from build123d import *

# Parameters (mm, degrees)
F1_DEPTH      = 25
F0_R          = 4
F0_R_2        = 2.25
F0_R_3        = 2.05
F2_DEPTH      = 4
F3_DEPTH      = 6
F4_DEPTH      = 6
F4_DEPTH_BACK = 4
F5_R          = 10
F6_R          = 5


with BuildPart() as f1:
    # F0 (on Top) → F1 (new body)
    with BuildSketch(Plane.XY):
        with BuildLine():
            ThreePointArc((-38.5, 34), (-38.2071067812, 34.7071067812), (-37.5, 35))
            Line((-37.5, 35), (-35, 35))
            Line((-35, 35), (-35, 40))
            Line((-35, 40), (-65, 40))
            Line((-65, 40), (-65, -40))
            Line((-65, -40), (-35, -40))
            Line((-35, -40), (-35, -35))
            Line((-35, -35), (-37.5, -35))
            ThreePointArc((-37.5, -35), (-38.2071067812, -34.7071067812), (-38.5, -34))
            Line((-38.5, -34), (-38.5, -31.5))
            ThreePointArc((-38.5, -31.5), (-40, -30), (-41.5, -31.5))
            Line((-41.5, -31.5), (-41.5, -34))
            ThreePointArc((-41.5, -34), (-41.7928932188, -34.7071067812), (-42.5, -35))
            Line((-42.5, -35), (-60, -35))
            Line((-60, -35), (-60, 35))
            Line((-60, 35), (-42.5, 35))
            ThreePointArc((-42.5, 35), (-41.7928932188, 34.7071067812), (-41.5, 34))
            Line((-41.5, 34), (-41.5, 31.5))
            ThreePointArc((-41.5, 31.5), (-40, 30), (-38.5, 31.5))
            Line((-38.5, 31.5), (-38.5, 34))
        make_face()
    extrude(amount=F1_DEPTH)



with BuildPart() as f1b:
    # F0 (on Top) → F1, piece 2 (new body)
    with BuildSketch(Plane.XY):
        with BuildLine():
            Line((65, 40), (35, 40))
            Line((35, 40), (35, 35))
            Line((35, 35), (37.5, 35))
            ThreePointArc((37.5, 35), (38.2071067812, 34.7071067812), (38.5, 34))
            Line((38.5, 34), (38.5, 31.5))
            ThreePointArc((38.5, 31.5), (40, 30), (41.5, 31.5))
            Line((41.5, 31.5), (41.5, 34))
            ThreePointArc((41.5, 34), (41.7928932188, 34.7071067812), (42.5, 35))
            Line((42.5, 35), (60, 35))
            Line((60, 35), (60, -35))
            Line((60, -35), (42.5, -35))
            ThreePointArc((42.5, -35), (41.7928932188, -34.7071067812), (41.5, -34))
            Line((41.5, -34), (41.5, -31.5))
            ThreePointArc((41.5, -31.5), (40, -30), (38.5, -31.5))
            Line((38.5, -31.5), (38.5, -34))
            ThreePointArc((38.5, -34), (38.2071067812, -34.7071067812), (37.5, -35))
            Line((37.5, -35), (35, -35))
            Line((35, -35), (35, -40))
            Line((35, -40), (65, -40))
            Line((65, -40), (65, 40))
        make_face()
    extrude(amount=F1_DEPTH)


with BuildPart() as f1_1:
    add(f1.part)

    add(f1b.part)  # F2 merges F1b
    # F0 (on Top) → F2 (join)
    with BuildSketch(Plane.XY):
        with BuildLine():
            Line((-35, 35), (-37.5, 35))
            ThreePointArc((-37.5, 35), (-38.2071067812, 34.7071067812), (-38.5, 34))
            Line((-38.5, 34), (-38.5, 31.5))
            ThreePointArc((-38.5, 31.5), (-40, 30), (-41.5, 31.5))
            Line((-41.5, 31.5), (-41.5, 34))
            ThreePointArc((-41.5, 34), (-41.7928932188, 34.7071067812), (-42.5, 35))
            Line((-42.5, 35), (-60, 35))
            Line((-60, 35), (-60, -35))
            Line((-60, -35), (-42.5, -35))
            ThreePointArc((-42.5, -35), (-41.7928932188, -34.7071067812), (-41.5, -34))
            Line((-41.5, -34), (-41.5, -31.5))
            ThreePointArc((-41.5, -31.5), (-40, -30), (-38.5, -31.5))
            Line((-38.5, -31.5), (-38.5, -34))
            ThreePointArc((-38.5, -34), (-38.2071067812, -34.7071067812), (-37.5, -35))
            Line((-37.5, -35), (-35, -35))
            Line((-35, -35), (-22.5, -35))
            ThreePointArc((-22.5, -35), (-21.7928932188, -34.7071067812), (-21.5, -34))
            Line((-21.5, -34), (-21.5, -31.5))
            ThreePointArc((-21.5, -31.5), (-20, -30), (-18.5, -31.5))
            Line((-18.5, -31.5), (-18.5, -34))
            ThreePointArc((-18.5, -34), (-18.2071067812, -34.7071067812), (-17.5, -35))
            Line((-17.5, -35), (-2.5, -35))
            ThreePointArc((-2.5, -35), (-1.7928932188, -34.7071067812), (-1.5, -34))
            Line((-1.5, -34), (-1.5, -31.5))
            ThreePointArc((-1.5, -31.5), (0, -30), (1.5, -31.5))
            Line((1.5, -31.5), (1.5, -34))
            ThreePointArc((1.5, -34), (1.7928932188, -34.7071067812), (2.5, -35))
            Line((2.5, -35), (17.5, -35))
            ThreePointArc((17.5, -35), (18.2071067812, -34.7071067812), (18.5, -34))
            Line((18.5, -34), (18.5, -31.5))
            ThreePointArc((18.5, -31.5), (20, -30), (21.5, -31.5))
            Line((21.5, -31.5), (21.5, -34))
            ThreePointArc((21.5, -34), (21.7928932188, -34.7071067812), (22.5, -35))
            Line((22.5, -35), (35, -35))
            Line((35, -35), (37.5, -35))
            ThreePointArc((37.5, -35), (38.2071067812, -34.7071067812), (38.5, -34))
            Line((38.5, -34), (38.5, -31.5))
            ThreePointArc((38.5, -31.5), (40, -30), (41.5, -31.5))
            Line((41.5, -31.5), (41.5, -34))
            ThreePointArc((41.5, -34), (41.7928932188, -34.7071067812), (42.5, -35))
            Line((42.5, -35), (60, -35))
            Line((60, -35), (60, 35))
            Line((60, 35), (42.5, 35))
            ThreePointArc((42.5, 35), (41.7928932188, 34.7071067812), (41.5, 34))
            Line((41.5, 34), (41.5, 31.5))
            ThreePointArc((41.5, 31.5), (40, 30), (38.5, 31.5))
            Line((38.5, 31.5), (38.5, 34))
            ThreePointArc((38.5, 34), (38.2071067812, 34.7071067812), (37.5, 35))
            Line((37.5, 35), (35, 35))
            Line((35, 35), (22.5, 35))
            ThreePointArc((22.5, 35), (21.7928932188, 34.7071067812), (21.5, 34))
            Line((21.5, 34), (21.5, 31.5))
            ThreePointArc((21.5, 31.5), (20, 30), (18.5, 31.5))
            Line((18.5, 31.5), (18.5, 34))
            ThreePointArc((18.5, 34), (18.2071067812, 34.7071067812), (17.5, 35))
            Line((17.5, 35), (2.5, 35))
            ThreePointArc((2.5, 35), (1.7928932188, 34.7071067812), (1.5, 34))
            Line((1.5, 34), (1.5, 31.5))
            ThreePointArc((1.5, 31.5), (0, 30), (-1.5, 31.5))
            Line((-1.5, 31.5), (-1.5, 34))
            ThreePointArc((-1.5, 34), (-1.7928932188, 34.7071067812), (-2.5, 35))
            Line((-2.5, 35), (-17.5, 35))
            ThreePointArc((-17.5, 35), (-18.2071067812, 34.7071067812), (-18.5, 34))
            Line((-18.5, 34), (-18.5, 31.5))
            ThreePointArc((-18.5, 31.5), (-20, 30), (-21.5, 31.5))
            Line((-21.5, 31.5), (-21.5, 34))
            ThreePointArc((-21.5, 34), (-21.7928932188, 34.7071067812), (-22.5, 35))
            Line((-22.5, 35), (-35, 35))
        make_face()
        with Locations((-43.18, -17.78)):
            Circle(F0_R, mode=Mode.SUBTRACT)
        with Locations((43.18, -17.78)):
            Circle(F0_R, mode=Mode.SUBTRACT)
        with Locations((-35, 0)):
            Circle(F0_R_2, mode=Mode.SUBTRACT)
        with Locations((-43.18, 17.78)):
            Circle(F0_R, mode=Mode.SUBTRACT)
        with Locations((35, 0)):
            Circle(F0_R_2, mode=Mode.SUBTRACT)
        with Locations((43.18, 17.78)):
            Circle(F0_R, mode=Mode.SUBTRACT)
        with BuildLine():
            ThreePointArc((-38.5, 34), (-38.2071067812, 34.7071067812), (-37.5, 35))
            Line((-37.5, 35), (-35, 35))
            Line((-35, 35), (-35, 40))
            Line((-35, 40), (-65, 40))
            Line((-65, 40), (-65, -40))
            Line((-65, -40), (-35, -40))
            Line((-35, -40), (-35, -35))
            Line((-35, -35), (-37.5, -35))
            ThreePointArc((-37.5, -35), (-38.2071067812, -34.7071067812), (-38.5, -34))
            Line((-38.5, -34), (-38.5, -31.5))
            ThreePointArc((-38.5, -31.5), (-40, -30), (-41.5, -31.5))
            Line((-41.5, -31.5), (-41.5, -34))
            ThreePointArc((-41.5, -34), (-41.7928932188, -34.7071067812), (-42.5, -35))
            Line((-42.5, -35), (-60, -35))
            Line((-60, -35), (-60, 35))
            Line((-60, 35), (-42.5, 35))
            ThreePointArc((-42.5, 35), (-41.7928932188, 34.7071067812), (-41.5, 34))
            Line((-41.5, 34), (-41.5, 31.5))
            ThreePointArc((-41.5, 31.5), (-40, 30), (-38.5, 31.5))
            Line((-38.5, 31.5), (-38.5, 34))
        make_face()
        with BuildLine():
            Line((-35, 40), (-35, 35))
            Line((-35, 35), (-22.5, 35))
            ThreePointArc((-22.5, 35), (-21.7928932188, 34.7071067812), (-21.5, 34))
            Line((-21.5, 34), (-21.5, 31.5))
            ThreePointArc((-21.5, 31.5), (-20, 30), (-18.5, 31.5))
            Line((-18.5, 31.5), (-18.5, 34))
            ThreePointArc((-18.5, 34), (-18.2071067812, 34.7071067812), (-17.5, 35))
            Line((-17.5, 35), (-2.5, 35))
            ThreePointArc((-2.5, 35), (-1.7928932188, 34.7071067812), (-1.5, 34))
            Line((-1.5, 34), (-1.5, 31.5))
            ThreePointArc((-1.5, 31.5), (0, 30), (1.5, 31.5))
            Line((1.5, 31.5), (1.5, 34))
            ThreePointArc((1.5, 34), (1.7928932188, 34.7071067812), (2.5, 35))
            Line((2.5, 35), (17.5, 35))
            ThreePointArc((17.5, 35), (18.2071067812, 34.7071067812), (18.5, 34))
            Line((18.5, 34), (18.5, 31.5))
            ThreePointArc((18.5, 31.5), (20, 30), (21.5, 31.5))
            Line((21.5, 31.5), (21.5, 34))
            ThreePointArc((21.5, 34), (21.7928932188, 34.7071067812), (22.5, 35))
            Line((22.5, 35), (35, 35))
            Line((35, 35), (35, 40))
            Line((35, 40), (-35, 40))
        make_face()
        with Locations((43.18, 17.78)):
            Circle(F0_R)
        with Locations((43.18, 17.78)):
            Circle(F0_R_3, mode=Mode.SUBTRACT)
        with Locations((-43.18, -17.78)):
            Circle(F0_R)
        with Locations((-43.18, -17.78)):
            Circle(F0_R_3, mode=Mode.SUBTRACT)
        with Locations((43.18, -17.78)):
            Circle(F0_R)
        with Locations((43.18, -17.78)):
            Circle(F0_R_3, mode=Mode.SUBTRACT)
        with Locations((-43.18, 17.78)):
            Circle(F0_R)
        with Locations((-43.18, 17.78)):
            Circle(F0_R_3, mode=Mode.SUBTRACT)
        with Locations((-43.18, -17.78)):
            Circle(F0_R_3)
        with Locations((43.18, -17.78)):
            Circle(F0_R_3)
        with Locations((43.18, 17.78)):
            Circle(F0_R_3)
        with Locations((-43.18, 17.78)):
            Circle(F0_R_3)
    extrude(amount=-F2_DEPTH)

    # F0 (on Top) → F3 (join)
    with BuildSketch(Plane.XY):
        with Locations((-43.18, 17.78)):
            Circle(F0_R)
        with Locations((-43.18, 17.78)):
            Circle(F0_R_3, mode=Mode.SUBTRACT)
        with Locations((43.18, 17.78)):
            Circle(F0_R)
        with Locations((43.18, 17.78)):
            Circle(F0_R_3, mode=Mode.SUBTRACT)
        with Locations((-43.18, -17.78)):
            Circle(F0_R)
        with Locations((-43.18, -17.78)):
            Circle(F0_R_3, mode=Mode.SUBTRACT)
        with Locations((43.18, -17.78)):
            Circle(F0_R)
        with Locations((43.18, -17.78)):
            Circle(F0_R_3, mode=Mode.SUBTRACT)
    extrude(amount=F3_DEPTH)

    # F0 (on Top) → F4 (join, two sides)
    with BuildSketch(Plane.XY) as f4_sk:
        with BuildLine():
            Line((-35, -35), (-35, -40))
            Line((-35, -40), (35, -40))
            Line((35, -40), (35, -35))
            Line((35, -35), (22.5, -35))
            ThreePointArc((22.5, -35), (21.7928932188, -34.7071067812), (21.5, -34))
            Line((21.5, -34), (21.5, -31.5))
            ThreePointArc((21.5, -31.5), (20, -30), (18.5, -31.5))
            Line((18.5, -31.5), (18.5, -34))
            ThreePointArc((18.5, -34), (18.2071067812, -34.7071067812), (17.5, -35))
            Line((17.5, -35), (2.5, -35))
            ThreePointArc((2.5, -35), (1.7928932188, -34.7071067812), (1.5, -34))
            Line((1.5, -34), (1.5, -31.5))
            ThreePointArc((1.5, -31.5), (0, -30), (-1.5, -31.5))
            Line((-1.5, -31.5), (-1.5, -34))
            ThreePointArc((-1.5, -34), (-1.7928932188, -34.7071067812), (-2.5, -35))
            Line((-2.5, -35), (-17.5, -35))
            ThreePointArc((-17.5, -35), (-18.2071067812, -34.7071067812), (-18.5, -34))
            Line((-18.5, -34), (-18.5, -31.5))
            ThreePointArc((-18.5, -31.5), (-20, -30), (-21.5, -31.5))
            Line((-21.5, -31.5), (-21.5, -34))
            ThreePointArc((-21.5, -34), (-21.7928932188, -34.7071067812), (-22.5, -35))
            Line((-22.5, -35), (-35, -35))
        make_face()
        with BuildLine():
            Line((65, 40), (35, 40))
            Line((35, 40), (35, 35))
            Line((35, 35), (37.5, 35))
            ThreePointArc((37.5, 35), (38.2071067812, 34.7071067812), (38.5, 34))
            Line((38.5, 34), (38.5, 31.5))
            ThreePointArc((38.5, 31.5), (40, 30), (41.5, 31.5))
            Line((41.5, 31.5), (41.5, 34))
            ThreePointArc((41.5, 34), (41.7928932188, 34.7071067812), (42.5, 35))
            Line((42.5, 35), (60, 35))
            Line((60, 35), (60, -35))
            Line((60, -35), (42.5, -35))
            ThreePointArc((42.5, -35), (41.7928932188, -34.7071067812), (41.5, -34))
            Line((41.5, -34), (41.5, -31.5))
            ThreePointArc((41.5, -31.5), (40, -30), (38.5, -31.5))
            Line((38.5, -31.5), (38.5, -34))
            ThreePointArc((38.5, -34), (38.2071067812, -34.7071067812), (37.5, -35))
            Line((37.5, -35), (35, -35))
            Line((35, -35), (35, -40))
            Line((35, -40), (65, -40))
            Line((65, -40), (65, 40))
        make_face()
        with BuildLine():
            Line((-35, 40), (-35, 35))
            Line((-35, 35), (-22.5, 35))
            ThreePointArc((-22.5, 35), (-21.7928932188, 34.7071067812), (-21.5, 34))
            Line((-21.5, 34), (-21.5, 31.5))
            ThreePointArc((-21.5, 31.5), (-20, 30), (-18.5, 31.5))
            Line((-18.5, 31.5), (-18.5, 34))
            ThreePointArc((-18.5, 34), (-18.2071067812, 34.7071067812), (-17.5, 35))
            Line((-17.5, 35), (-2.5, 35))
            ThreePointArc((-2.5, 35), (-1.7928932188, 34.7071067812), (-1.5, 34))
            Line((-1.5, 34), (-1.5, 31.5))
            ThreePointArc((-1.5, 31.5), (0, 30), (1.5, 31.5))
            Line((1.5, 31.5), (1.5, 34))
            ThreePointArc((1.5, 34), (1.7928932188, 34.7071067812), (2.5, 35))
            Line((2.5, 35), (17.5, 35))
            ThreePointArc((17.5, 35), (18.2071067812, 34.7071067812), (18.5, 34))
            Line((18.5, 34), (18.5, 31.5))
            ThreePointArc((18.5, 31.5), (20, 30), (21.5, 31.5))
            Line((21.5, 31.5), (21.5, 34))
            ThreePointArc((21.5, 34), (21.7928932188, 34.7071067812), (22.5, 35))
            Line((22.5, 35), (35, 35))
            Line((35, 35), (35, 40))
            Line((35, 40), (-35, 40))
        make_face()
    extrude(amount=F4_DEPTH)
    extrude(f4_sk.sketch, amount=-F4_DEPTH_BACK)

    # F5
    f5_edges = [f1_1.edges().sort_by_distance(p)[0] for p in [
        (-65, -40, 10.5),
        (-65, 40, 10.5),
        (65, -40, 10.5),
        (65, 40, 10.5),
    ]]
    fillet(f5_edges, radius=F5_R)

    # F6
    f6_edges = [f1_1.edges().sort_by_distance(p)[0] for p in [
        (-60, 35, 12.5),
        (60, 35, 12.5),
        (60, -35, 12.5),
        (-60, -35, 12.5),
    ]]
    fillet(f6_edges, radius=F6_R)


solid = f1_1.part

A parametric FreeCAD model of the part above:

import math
import FreeCAD as App
import Part
import Sketcher
from FreeCAD import Vector


def edges_at(feature, points):
    """Names of the edges that pass closest to the given points."""
    edges = feature.Shape.Edges
    near = lambda p: min(range(len(edges)), key=lambda i: edges[i].distToShape(Part.Vertex(*p))[0])
    return sorted({f"Edge{near(p) + 1}" for p in points})

doc = App.newDocument("Part")
body = doc.addObject("PartDesign::Body", "Body")

sketch1 = body.newObject("Sketcher::SketchObject", "Sketch")
sketch1.AttachmentSupport = (doc.getObject("XY_Plane"), [""])
sketch1.MapMode = "FlatFace"
sketch1.addGeometry([
    Part.ArcOfCircle(Part.Circle(Vector(-37.5, 34, 0), Vector(0, 0, 1), 1), math.radians(90), math.radians(180)),
    Part.LineSegment(Vector(-37.5, 35, 0), Vector(-35, 35, 0)),
    Part.LineSegment(Vector(-35, 35, 0), Vector(-35, 40, 0)),
    Part.LineSegment(Vector(-35, 40, 0), Vector(-65, 40, 0)),
    Part.LineSegment(Vector(-65, 40, 0), Vector(-65, -40, 0)),
    Part.LineSegment(Vector(-65, -40, 0), Vector(-35, -40, 0)),
    Part.LineSegment(Vector(-35, -40, 0), Vector(-35, -35, 0)),
    Part.LineSegment(Vector(-35, -35, 0), Vector(-37.5, -35, 0)),
    Part.ArcOfCircle(Part.Circle(Vector(-37.5, -34, 0), Vector(0, 0, 1), 1), math.radians(180), math.radians(270)),
    Part.LineSegment(Vector(-38.5, -34, 0), Vector(-38.5, -31.5, 0)),
    Part.ArcOfCircle(Part.Circle(Vector(-40, -31.5, 0), Vector(0, 0, 1), 1.5), math.radians(0), math.radians(180)),
    Part.LineSegment(Vector(-41.5, -31.5, 0), Vector(-41.5, -34, 0)),
    Part.ArcOfCircle(Part.Circle(Vector(-42.5, -34, 0), Vector(0, 0, 1), 1), math.radians(-90), math.radians(0)),
    Part.LineSegment(Vector(-42.5, -35, 0), Vector(-60, -35, 0)),
    Part.LineSegment(Vector(-60, -35, 0), Vector(-60, 35, 0)),
    Part.LineSegment(Vector(-60, 35, 0), Vector(-42.5, 35, 0)),
    Part.ArcOfCircle(Part.Circle(Vector(-42.5, 34, 0), Vector(0, 0, 1), 1), math.radians(0), math.radians(90)),
    Part.LineSegment(Vector(-41.5, 34, 0), Vector(-41.5, 31.5, 0)),
    Part.ArcOfCircle(Part.Circle(Vector(-40, 31.5, 0), Vector(0, 0, 1), 1.5), math.radians(180), math.radians(360)),
    Part.LineSegment(Vector(-38.5, 31.5, 0), Vector(-38.5, 34, 0)),
], False)
sketch1.addConstraint([
    Sketcher.Constraint("Tangent", 0, 1, 1, 1),
    Sketcher.Constraint("Coincident", 1, 2, 2, 1),
    Sketcher.Constraint("Coincident", 2, 2, 3, 1),
    Sketcher.Constraint("Coincident", 3, 2, 4, 1),
    Sketcher.Constraint("Coincident", 4, 2, 5, 1),
    Sketcher.Constraint("Coincident", 5, 2, 6, 1),
    Sketcher.Constraint("Coincident", 6, 2, 7, 1),
    Sketcher.Constraint("Tangent", 7, 2, 8, 2),
    Sketcher.Constraint("Tangent", 8, 1, 9, 1),
    Sketcher.Constraint("Tangent", 9, 2, 10, 1),
    Sketcher.Constraint("Tangent", 10, 2, 11, 1),
    Sketcher.Constraint("Tangent", 11, 2, 12, 2),
    Sketcher.Constraint("Tangent", 12, 1, 13, 1),
    Sketcher.Constraint("Coincident", 13, 2, 14, 1),
    Sketcher.Constraint("Coincident", 14, 2, 15, 1),
    Sketcher.Constraint("Tangent", 15, 2, 16, 2),
    Sketcher.Constraint("Tangent", 16, 1, 17, 1),
    Sketcher.Constraint("Tangent", 17, 2, 18, 1),
    Sketcher.Constraint("Tangent", 18, 2, 19, 1),
    Sketcher.Constraint("Tangent", 19, 2, 0, 2),
    Sketcher.Constraint("Horizontal", 1),
    Sketcher.Constraint("Vertical", 2),
    Sketcher.Constraint("Horizontal", 3),
    Sketcher.Constraint("Vertical", 4),
    Sketcher.Constraint("Horizontal", 5),
    Sketcher.Constraint("Vertical", 6),
    Sketcher.Constraint("Horizontal", 7),
    Sketcher.Constraint("Vertical", 9),
    Sketcher.Constraint("Vertical", 11),
    Sketcher.Constraint("Horizontal", 13),
    Sketcher.Constraint("Vertical", 14),
    Sketcher.Constraint("Horizontal", 15),
    Sketcher.Constraint("Vertical", 17),
    Sketcher.Constraint("Vertical", 19),
    Sketcher.Constraint("Equal", 0, 8),
    Sketcher.Constraint("Equal", 8, 12),
    Sketcher.Constraint("Equal", 12, 16),
    Sketcher.Constraint("Equal", 10, 18),
    Sketcher.Constraint("Symmetric", 0, 3, 8, 3, -1),
    Sketcher.Constraint("Symmetric", 2, 2, 5, 2, -1),
    Sketcher.Constraint("Horizontal", 8, 3, 12, 3),
    Sketcher.Constraint("Horizontal", 0, 3, 16, 3),
    Sketcher.Constraint("Equal", 7, 9),
    Sketcher.Constraint("Equal", 11, 17),
    Sketcher.Constraint("Radius", 0, 1.0),
    Sketcher.Constraint("Radius", 10, 1.5),
    Sketcher.Constraint("DistanceX", 3, 2, 3, 1, 30.0),
    Sketcher.Constraint("DistanceY", 2, 1, 2, 2, 5.0),
    Sketcher.Constraint("DistanceY", 4, 2, 4, 1, 80.0),
    Sketcher.Constraint("DistanceX", 1, 1, 1, 2, 2.5),
    Sketcher.Constraint("DistanceX", 13, 2, 13, 1, 17.5),
    Sketcher.Constraint("DistanceX", 10, 3, -1, 1, 40.0),
])
pad1 = body.newObject("PartDesign::Pad", "Pad")
pad1.Profile = sketch1
pad1.Length = 25
body2 = doc.addObject("PartDesign::Body", "Body001")

sketch2 = body2.newObject("Sketcher::SketchObject", "Sketch001")
sketch2.AttachmentSupport = (doc.getObject("XY_Plane001"), [""])
sketch2.MapMode = "FlatFace"
sketch2.addGeometry([
    Part.LineSegment(Vector(65, 40, 0), Vector(35, 40, 0)),
    Part.LineSegment(Vector(35, 40, 0), Vector(35, 35, 0)),
    Part.LineSegment(Vector(35, 35, 0), Vector(37.5, 35, 0)),
    Part.ArcOfCircle(Part.Circle(Vector(37.5, 34, 0), Vector(0, 0, 1), 1), math.radians(0), math.radians(90)),
    Part.LineSegment(Vector(38.5, 34, 0), Vector(38.5, 31.5, 0)),
    Part.ArcOfCircle(Part.Circle(Vector(40, 31.5, 0), Vector(0, 0, 1), 1.5), math.radians(180), math.radians(360)),
    Part.LineSegment(Vector(41.5, 31.5, 0), Vector(41.5, 34, 0)),
    Part.ArcOfCircle(Part.Circle(Vector(42.5, 34, 0), Vector(0, 0, 1), 1), math.radians(90), math.radians(180)),
    Part.LineSegment(Vector(42.5, 35, 0), Vector(60, 35, 0)),
    Part.LineSegment(Vector(60, 35, 0), Vector(60, -35, 0)),
    Part.LineSegment(Vector(60, -35, 0), Vector(42.5, -35, 0)),
    Part.ArcOfCircle(Part.Circle(Vector(42.5, -34, 0), Vector(0, 0, 1), 1), math.radians(180), math.radians(270)),
    Part.LineSegment(Vector(41.5, -34, 0), Vector(41.5, -31.5, 0)),
    Part.ArcOfCircle(Part.Circle(Vector(40, -31.5, 0), Vector(0, 0, 1), 1.5), math.radians(0), math.radians(180)),
    Part.LineSegment(Vector(38.5, -31.5, 0), Vector(38.5, -34, 0)),
    Part.ArcOfCircle(Part.Circle(Vector(37.5, -34, 0), Vector(0, 0, 1), 1), math.radians(-90), math.radians(0)),
    Part.LineSegment(Vector(37.5, -35, 0), Vector(35, -35, 0)),
    Part.LineSegment(Vector(35, -35, 0), Vector(35, -40, 0)),
    Part.LineSegment(Vector(35, -40, 0), Vector(65, -40, 0)),
    Part.LineSegment(Vector(65, -40, 0), Vector(65, 40, 0)),
], False)
sketch2.addConstraint([
    Sketcher.Constraint("Coincident", 0, 2, 1, 1),
    Sketcher.Constraint("Coincident", 1, 2, 2, 1),
    Sketcher.Constraint("Tangent", 2, 2, 3, 2),
    Sketcher.Constraint("Tangent", 3, 1, 4, 1),
    Sketcher.Constraint("Tangent", 4, 2, 5, 1),
    Sketcher.Constraint("Tangent", 5, 2, 6, 1),
    Sketcher.Constraint("Tangent", 6, 2, 7, 2),
    Sketcher.Constraint("Tangent", 7, 1, 8, 1),
    Sketcher.Constraint("Coincident", 8, 2, 9, 1),
    Sketcher.Constraint("Coincident", 9, 2, 10, 1),
    Sketcher.Constraint("Tangent", 10, 2, 11, 2),
    Sketcher.Constraint("Tangent", 11, 1, 12, 1),
    Sketcher.Constraint("Tangent", 12, 2, 13, 1),
    Sketcher.Constraint("Tangent", 13, 2, 14, 1),
    Sketcher.Constraint("Tangent", 14, 2, 15, 2),
    Sketcher.Constraint("Tangent", 15, 1, 16, 1),
    Sketcher.Constraint("Coincident", 16, 2, 17, 1),
    Sketcher.Constraint("Coincident", 17, 2, 18, 1),
    Sketcher.Constraint("Coincident", 18, 2, 19, 1),
    Sketcher.Constraint("Coincident", 19, 2, 0, 1),
    Sketcher.Constraint("Horizontal", 0),
    Sketcher.Constraint("Vertical", 1),
    Sketcher.Constraint("Horizontal", 2),
    Sketcher.Constraint("Vertical", 4),
    Sketcher.Constraint("Vertical", 6),
    Sketcher.Constraint("Horizontal", 8),
    Sketcher.Constraint("Vertical", 9),
    Sketcher.Constraint("Horizontal", 10),
    Sketcher.Constraint("Vertical", 12),
    Sketcher.Constraint("Vertical", 14),
    Sketcher.Constraint("Horizontal", 16),
    Sketcher.Constraint("Vertical", 17),
    Sketcher.Constraint("Horizontal", 18),
    Sketcher.Constraint("Vertical", 19),
    Sketcher.Constraint("Equal", 3, 7),
    Sketcher.Constraint("Equal", 7, 11),
    Sketcher.Constraint("Equal", 5, 13),
    Sketcher.Constraint("Equal", 11, 15),
    Sketcher.Constraint("Symmetric", 7, 3, 11, 3, -1),
    Sketcher.Constraint("Symmetric", 1, 2, 16, 2, -1),
    Sketcher.Constraint("Horizontal", 3, 3, 7, 3),
    Sketcher.Constraint("Equal", 16, 4),
    Sketcher.Constraint("Equal", 6, 12),
    Sketcher.Constraint("Equal", 1, 17),
    Sketcher.Constraint("Radius", 3, 1.0),
    Sketcher.Constraint("Radius", 5, 1.5),
    Sketcher.Constraint("DistanceX", 0, 2, 0, 1, 30.0),
    Sketcher.Constraint("DistanceY", 1, 2, 1, 1, 5.0),
    Sketcher.Constraint("DistanceY", 9, 2, 9, 1, 70.0),
    Sketcher.Constraint("DistanceX", 2, 1, 2, 2, 2.5),
    Sketcher.Constraint("DistanceX", 8, 1, 8, 2, 17.5),
    Sketcher.Constraint("DistanceX", -1, 1, 5, 3, 40.0),
])
pad2 = body2.newObject("PartDesign::Pad", "Pad001")
pad2.Profile = sketch2
pad2.Length = 25
body.AllowCompound = True
doc.recompute()

boolean = body.newObject("PartDesign::Boolean", "Boolean")
boolean.Type = "Fuse"
boolean.addObjects([body2])

sketch3 = body.newObject("Sketcher::SketchObject", "Sketch002")
sketch3.AttachmentSupport = (doc.getObject("XY_Plane"), [""])
sketch3.MapMode = "FlatFace"
sketch3.addGeometry([
    Part.LineSegment(Vector(-65, 40, 0), Vector(-65, -40, 0)),
    Part.LineSegment(Vector(-65, -40, 0), Vector(-35, -40, 0)),
    Part.LineSegment(Vector(-35, -40, 0), Vector(-35, -35, 0)),
    Part.LineSegment(Vector(-35, -35, 0), Vector(-22.5, -35, 0)),
    Part.ArcOfCircle(Part.Circle(Vector(-22.5, -34, 0), Vector(0, 0, 1), 1), math.radians(-90), math.radians(0)),
    Part.LineSegment(Vector(-21.5, -34, 0), Vector(-21.5, -31.5, 0)),
    Part.ArcOfCircle(Part.Circle(Vector(-20, -31.5, 0), Vector(0, 0, 1), 1.5), math.radians(0), math.radians(180)),
    Part.LineSegment(Vector(-18.5, -31.5, 0), Vector(-18.5, -34, 0)),
    Part.ArcOfCircle(Part.Circle(Vector(-17.5, -34, 0), Vector(0, 0, 1), 1), math.radians(180), math.radians(270)),
    Part.LineSegment(Vector(-17.5, -35, 0), Vector(-2.5, -35, 0)),
    Part.ArcOfCircle(Part.Circle(Vector(-2.5, -34, 0), Vector(0, 0, 1), 1), math.radians(-90), math.radians(0)),
    Part.LineSegment(Vector(-1.5, -34, 0), Vector(-1.5, -31.5, 0)),
    Part.ArcOfCircle(Part.Circle(Vector(0, -31.5, 0), Vector(0, 0, 1), 1.5), math.radians(0), math.radians(180)),
    Part.LineSegment(Vector(1.5, -31.5, 0), Vector(1.5, -34, 0)),
    Part.ArcOfCircle(Part.Circle(Vector(2.5, -34, 0), Vector(0, 0, 1), 1), math.radians(180), math.radians(270)),
    Part.LineSegment(Vector(2.5, -35, 0), Vector(17.5, -35, 0)),
    Part.ArcOfCircle(Part.Circle(Vector(17.5, -34, 0), Vector(0, 0, 1), 1), math.radians(-90), math.radians(0)),
    Part.LineSegment(Vector(18.5, -34, 0), Vector(18.5, -31.5, 0)),
    Part.ArcOfCircle(Part.Circle(Vector(20, -31.5, 0), Vector(0, 0, 1), 1.5), math.radians(0), math.radians(180)),
    Part.LineSegment(Vector(21.5, -31.5, 0), Vector(21.5, -34, 0)),
    Part.ArcOfCircle(Part.Circle(Vector(22.5, -34, 0), Vector(0, 0, 1), 1), math.radians(180), math.radians(270)),
    Part.LineSegment(Vector(22.5, -35, 0), Vector(37.5, -35, 0)),
    Part.ArcOfCircle(Part.Circle(Vector(37.5, -34, 0), Vector(0, 0, 1), 1), math.radians(-90), math.radians(0)),
    Part.LineSegment(Vector(38.5, -34, 0), Vector(38.5, -31.5, 0)),
    Part.ArcOfCircle(Part.Circle(Vector(40, -31.5, 0), Vector(0, 0, 1), 1.5), math.radians(0), math.radians(180)),
    Part.LineSegment(Vector(41.5, -31.5, 0), Vector(41.5, -34, 0)),
    Part.ArcOfCircle(Part.Circle(Vector(42.5, -34, 0), Vector(0, 0, 1), 1), math.radians(180), math.radians(270)),
    Part.LineSegment(Vector(42.5, -35, 0), Vector(60, -35, 0)),
    Part.LineSegment(Vector(60, -35, 0), Vector(60, 35, 0)),
    Part.LineSegment(Vector(60, 35, 0), Vector(42.5, 35, 0)),
    Part.ArcOfCircle(Part.Circle(Vector(42.5, 34, 0), Vector(0, 0, 1), 1), math.radians(90), math.radians(180)),
    Part.LineSegment(Vector(41.5, 34, 0), Vector(41.5, 31.5, 0)),
    Part.ArcOfCircle(Part.Circle(Vector(40, 31.5, 0), Vector(0, 0, 1), 1.5), math.radians(180), math.radians(360)),
    Part.LineSegment(Vector(38.5, 31.5, 0), Vector(38.5, 34, 0)),
    Part.ArcOfCircle(Part.Circle(Vector(37.5, 34, 0), Vector(0, 0, 1), 1), math.radians(0), math.radians(90)),
    Part.LineSegment(Vector(37.5, 35, 0), Vector(35, 35, 0)),
    Part.LineSegment(Vector(35, 35, 0), Vector(35, 40, 0)),
    Part.LineSegment(Vector(35, 40, 0), Vector(-65, 40, 0)),
    Part.Circle(Vector(-35, 0, 0), Vector(0, 0, 1), 2.25),
    Part.Circle(Vector(35, 0, 0), Vector(0, 0, 1), 2.25),
], False)
sketch3.addConstraint([
    Sketcher.Constraint("Coincident", 0, 2, 1, 1),
    Sketcher.Constraint("Coincident", 1, 2, 2, 1),
    Sketcher.Constraint("Coincident", 2, 2, 3, 1),
    Sketcher.Constraint("Tangent", 3, 2, 4, 1),
    Sketcher.Constraint("Tangent", 4, 2, 5, 1),
    Sketcher.Constraint("Tangent", 5, 2, 6, 2),
    Sketcher.Constraint("Tangent", 6, 1, 7, 1),
    Sketcher.Constraint("Tangent", 7, 2, 8, 1),
    Sketcher.Constraint("Tangent", 8, 2, 9, 1),
    Sketcher.Constraint("Tangent", 9, 2, 10, 1),
    Sketcher.Constraint("Tangent", 10, 2, 11, 1),
    Sketcher.Constraint("Tangent", 11, 2, 12, 2),
    Sketcher.Constraint("Tangent", 12, 1, 13, 1),
    Sketcher.Constraint("Tangent", 13, 2, 14, 1),
    Sketcher.Constraint("Tangent", 14, 2, 15, 1),
    Sketcher.Constraint("Tangent", 15, 2, 16, 1),
    Sketcher.Constraint("Tangent", 16, 2, 17, 1),
    Sketcher.Constraint("Tangent", 17, 2, 18, 2),
    Sketcher.Constraint("Tangent", 18, 1, 19, 1),
    Sketcher.Constraint("Tangent", 19, 2, 20, 1),
    Sketcher.Constraint("Tangent", 20, 2, 21, 1),
    Sketcher.Constraint("Tangent", 21, 2, 22, 1),
    Sketcher.Constraint("Tangent", 22, 2, 23, 1),
    Sketcher.Constraint("Tangent", 23, 2, 24, 2),
    Sketcher.Constraint("Tangent", 24, 1, 25, 1),
    Sketcher.Constraint("Tangent", 25, 2, 26, 1),
    Sketcher.Constraint("Tangent", 26, 2, 27, 1),
    Sketcher.Constraint("Coincident", 27, 2, 28, 1),
    Sketcher.Constraint("Coincident", 28, 2, 29, 1),
    Sketcher.Constraint("Tangent", 29, 2, 30, 1),
    Sketcher.Constraint("Tangent", 30, 2, 31, 1),
    Sketcher.Constraint("Tangent", 31, 2, 32, 2),
    Sketcher.Constraint("Tangent", 32, 1, 33, 1),
    Sketcher.Constraint("Tangent", 33, 2, 34, 1),
    Sketcher.Constraint("Tangent", 34, 2, 35, 1),
    Sketcher.Constraint("Coincident", 35, 2, 36, 1),
    Sketcher.Constraint("Coincident", 36, 2, 37, 1),
    Sketcher.Constraint("Coincident", 37, 2, 0, 1),
    Sketcher.Constraint("Vertical", 0),
    Sketcher.Constraint("Horizontal", 1),
    Sketcher.Constraint("Vertical", 2),
    Sketcher.Constraint("Horizontal", 3),
    Sketcher.Constraint("Vertical", 5),
    Sketcher.Constraint("Vertical", 7),
    Sketcher.Constraint("Horizontal", 9),
    Sketcher.Constraint("Vertical", 11),
    Sketcher.Constraint("Vertical", 13),
    Sketcher.Constraint("Horizontal", 15),
    Sketcher.Constraint("Vertical", 17),
    Sketcher.Constraint("Vertical", 19),
    Sketcher.Constraint("Horizontal", 21),
    Sketcher.Constraint("Vertical", 23),
    Sketcher.Constraint("Vertical", 25),
    Sketcher.Constraint("Horizontal", 27),
    Sketcher.Constraint("Vertical", 28),
    Sketcher.Constraint("Horizontal", 29),
    Sketcher.Constraint("Vertical", 31),
    Sketcher.Constraint("Vertical", 33),
    Sketcher.Constraint("Horizontal", 35),
    Sketcher.Constraint("Vertical", 36),
    Sketcher.Constraint("Horizontal", 37),
    Sketcher.Constraint("Equal", 4, 8),
    Sketcher.Constraint("Equal", 8, 10),
    Sketcher.Constraint("Equal", 6, 12),
    Sketcher.Constraint("Equal", 10, 14),
    Sketcher.Constraint("Equal", 14, 16),
    Sketcher.Constraint("Equal", 12, 18),
    Sketcher.Constraint("Equal", 16, 20),
    Sketcher.Constraint("Equal", 20, 22),
    Sketcher.Constraint("Equal", 18, 24),
    Sketcher.Constraint("Equal", 22, 26),
    Sketcher.Constraint("Equal", 26, 30),
    Sketcher.Constraint("Equal", 24, 32),
    Sketcher.Constraint("Equal", 30, 34),
    Sketcher.Constraint("Equal", 38, 39),
    Sketcher.Constraint("Symmetric", 38, 3, 39, 3, -1, 1),
    Sketcher.Constraint("Symmetric", 2, 2, 35, 2, -1, 1),
    Sketcher.Constraint("Symmetric", 10, 3, 14, 3, -2),
    Sketcher.Constraint("Symmetric", 6, 3, 18, 3, -2),
    Sketcher.Constraint("Symmetric", 26, 3, 30, 3, -1),
    Sketcher.Constraint("PointOnObject", 38, 3, -1),
    Sketcher.Constraint("Horizontal", 4, 3, 8, 3),
    Sketcher.Constraint("Horizontal", 6, 3, 12, 3),
    Sketcher.Constraint("Horizontal", 16, 3, 20, 3),
    Sketcher.Constraint("Horizontal", 18, 3, 24, 3),
    Sketcher.Constraint("Horizontal", 22, 3, 26, 3),
    Sketcher.Constraint("Vertical", 38, 3, 1, 2),
    Sketcher.Constraint("Equal", 15, 21),
    Sketcher.Constraint("Equal", 35, 5),
    Sketcher.Constraint("Equal", 25, 31),
    Sketcher.Constraint("Equal", 2, 36),
    Sketcher.Constraint("Radius", 4, 1.0),
    Sketcher.Constraint("Diameter", 38, 4.5),
    Sketcher.Constraint("Radius", 6, 1.5),
    Sketcher.Constraint("DistanceX", 1, 1, 1, 2, 30.0),
    Sketcher.Constraint("DistanceX", 9, 1, 9, 2, 15.0),
    Sketcher.Constraint("DistanceX", 37, 2, 37, 1, 100.0),
    Sketcher.Constraint("DistanceY", 0, 2, 0, 1, 80.0),
    Sketcher.Constraint("DistanceY", 2, 1, 2, 2, 5.0),
    Sketcher.Constraint("DistanceX", 27, 1, 27, 2, 17.5),
])
pad3 = body.newObject("PartDesign::Pad", "Pad002")
pad3.Profile = sketch3
pad3.Length = 4
pad3.Reversed = True

sketch4 = body.newObject("Sketcher::SketchObject", "Sketch003")
sketch4.AttachmentSupport = (doc.getObject("XY_Plane"), [""])
sketch4.MapMode = "FlatFace"
sketch4.addGeometry([
    Part.Circle(Vector(-43.18, 17.78, 0), Vector(0, 0, 1), 4),
    Part.Circle(Vector(-43.18, 17.78, 0), Vector(0, 0, 1), 2.05),
    Part.Circle(Vector(43.18, 17.78, 0), Vector(0, 0, 1), 4),
    Part.Circle(Vector(43.18, 17.78, 0), Vector(0, 0, 1), 2.05),
    Part.Circle(Vector(-43.18, -17.78, 0), Vector(0, 0, 1), 4),
    Part.Circle(Vector(-43.18, -17.78, 0), Vector(0, 0, 1), 2.05),
    Part.Circle(Vector(43.18, -17.78, 0), Vector(0, 0, 1), 4),
    Part.Circle(Vector(43.18, -17.78, 0), Vector(0, 0, 1), 2.05),
], False)
sketch4.addConstraint([
    Sketcher.Constraint("Coincident", 1, 3, 0, 3),
    Sketcher.Constraint("Coincident", 3, 3, 2, 3),
    Sketcher.Constraint("Coincident", 5, 3, 4, 3),
    Sketcher.Constraint("Coincident", 7, 3, 6, 3),
    Sketcher.Constraint("Equal", 0, 2),
    Sketcher.Constraint("Equal", 1, 3),
    Sketcher.Constraint("Equal", 2, 4),
    Sketcher.Constraint("Equal", 3, 5),
    Sketcher.Constraint("Equal", 4, 6),
    Sketcher.Constraint("Equal", 5, 7),
    Sketcher.Constraint("Symmetric", 2, 3, 4, 3, -1, 1),
    Sketcher.Constraint("Symmetric", 0, 3, 6, 3, -1, 1),
    Sketcher.Constraint("Symmetric", 0, 3, 2, 3, -2),
    Sketcher.Constraint("Diameter", 0, 8.0),
    Sketcher.Constraint("Diameter", 1, 4.1),
    Sketcher.Constraint("DistanceX", 0, 3, -1, 1, 43.18),
    Sketcher.Constraint("DistanceY", -1, 1, 0, 3, 17.78),
])
pad4 = body.newObject("PartDesign::Pad", "Pad003")
pad4.Profile = sketch4
pad4.Length = 6

sketch5 = body.newObject("Sketcher::SketchObject", "Sketch004")
sketch5.AttachmentSupport = (doc.getObject("XY_Plane"), [""])
sketch5.MapMode = "FlatFace"
sketch5.addGeometry([
    Part.LineSegment(Vector(-35, -35, 0), Vector(-35, -40, 0)),
    Part.LineSegment(Vector(-35, -40, 0), Vector(65, -40, 0)),
    Part.LineSegment(Vector(65, -40, 0), Vector(65, 40, 0)),
    Part.LineSegment(Vector(65, 40, 0), Vector(-35, 40, 0)),
    Part.LineSegment(Vector(-35, 40, 0), Vector(-35, 35, 0)),
    Part.LineSegment(Vector(-35, 35, 0), Vector(-22.5, 35, 0)),
    Part.ArcOfCircle(Part.Circle(Vector(-22.5, 34, 0), Vector(0, 0, 1), 1), math.radians(0), math.radians(90)),
    Part.LineSegment(Vector(-21.5, 34, 0), Vector(-21.5, 31.5, 0)),
    Part.ArcOfCircle(Part.Circle(Vector(-20, 31.5, 0), Vector(0, 0, 1), 1.5), math.radians(180), math.radians(360)),
    Part.LineSegment(Vector(-18.5, 31.5, 0), Vector(-18.5, 34, 0)),
    Part.ArcOfCircle(Part.Circle(Vector(-17.5, 34, 0), Vector(0, 0, 1), 1), math.radians(90), math.radians(180)),
    Part.LineSegment(Vector(-17.5, 35, 0), Vector(-2.5, 35, 0)),
    Part.ArcOfCircle(Part.Circle(Vector(-2.5, 34, 0), Vector(0, 0, 1), 1), math.radians(0), math.radians(90)),
    Part.LineSegment(Vector(-1.5, 34, 0), Vector(-1.5, 31.5, 0)),
    Part.ArcOfCircle(Part.Circle(Vector(0, 31.5, 0), Vector(0, 0, 1), 1.5), math.radians(180), math.radians(360)),
    Part.LineSegment(Vector(1.5, 31.5, 0), Vector(1.5, 34, 0)),
    Part.ArcOfCircle(Part.Circle(Vector(2.5, 34, 0), Vector(0, 0, 1), 1), math.radians(90), math.radians(180)),
    Part.LineSegment(Vector(2.5, 35, 0), Vector(17.5, 35, 0)),
    Part.ArcOfCircle(Part.Circle(Vector(17.5, 34, 0), Vector(0, 0, 1), 1), math.radians(0), math.radians(90)),
    Part.LineSegment(Vector(18.5, 34, 0), Vector(18.5, 31.5, 0)),
    Part.ArcOfCircle(Part.Circle(Vector(20, 31.5, 0), Vector(0, 0, 1), 1.5), math.radians(180), math.radians(360)),
    Part.LineSegment(Vector(21.5, 31.5, 0), Vector(21.5, 34, 0)),
    Part.ArcOfCircle(Part.Circle(Vector(22.5, 34, 0), Vector(0, 0, 1), 1), math.radians(90), math.radians(180)),
    Part.LineSegment(Vector(22.5, 35, 0), Vector(37.5, 35, 0)),
    Part.ArcOfCircle(Part.Circle(Vector(37.5, 34, 0), Vector(0, 0, 1), 1), math.radians(0), math.radians(90)),
    Part.LineSegment(Vector(38.5, 34, 0), Vector(38.5, 31.5, 0)),
    Part.ArcOfCircle(Part.Circle(Vector(40, 31.5, 0), Vector(0, 0, 1), 1.5), math.radians(180), math.radians(360)),
    Part.LineSegment(Vector(41.5, 31.5, 0), Vector(41.5, 34, 0)),
    Part.ArcOfCircle(Part.Circle(Vector(42.5, 34, 0), Vector(0, 0, 1), 1), math.radians(90), math.radians(180)),
    Part.LineSegment(Vector(42.5, 35, 0), Vector(60, 35, 0)),
    Part.LineSegment(Vector(60, 35, 0), Vector(60, -35, 0)),
    Part.LineSegment(Vector(60, -35, 0), Vector(42.5, -35, 0)),
    Part.ArcOfCircle(Part.Circle(Vector(42.5, -34, 0), Vector(0, 0, 1), 1), math.radians(180), math.radians(270)),
    Part.LineSegment(Vector(41.5, -34, 0), Vector(41.5, -31.5, 0)),
    Part.ArcOfCircle(Part.Circle(Vector(40, -31.5, 0), Vector(0, 0, 1), 1.5), math.radians(0), math.radians(180)),
    Part.LineSegment(Vector(38.5, -31.5, 0), Vector(38.5, -34, 0)),
    Part.ArcOfCircle(Part.Circle(Vector(37.5, -34, 0), Vector(0, 0, 1), 1), math.radians(-90), math.radians(0)),
    Part.LineSegment(Vector(37.5, -35, 0), Vector(22.5, -35, 0)),
    Part.ArcOfCircle(Part.Circle(Vector(22.5, -34, 0), Vector(0, 0, 1), 1), math.radians(180), math.radians(270)),
    Part.LineSegment(Vector(21.5, -34, 0), Vector(21.5, -31.5, 0)),
    Part.ArcOfCircle(Part.Circle(Vector(20, -31.5, 0), Vector(0, 0, 1), 1.5), math.radians(0), math.radians(180)),
    Part.LineSegment(Vector(18.5, -31.5, 0), Vector(18.5, -34, 0)),
    Part.ArcOfCircle(Part.Circle(Vector(17.5, -34, 0), Vector(0, 0, 1), 1), math.radians(-90), math.radians(0)),
    Part.LineSegment(Vector(17.5, -35, 0), Vector(2.5, -35, 0)),
    Part.ArcOfCircle(Part.Circle(Vector(2.5, -34, 0), Vector(0, 0, 1), 1), math.radians(180), math.radians(270)),
    Part.LineSegment(Vector(1.5, -34, 0), Vector(1.5, -31.5, 0)),
    Part.ArcOfCircle(Part.Circle(Vector(0, -31.5, 0), Vector(0, 0, 1), 1.5), math.radians(0), math.radians(180)),
    Part.LineSegment(Vector(-1.5, -31.5, 0), Vector(-1.5, -34, 0)),
    Part.ArcOfCircle(Part.Circle(Vector(-2.5, -34, 0), Vector(0, 0, 1), 1), math.radians(-90), math.radians(0)),
    Part.LineSegment(Vector(-2.5, -35, 0), Vector(-17.5, -35, 0)),
    Part.ArcOfCircle(Part.Circle(Vector(-17.5, -34, 0), Vector(0, 0, 1), 1), math.radians(180), math.radians(270)),
    Part.LineSegment(Vector(-18.5, -34, 0), Vector(-18.5, -31.5, 0)),
    Part.ArcOfCircle(Part.Circle(Vector(-20, -31.5, 0), Vector(0, 0, 1), 1.5), math.radians(0), math.radians(180)),
    Part.LineSegment(Vector(-21.5, -31.5, 0), Vector(-21.5, -34, 0)),
    Part.ArcOfCircle(Part.Circle(Vector(-22.5, -34, 0), Vector(0, 0, 1), 1), math.radians(-90), math.radians(0)),
    Part.LineSegment(Vector(-22.5, -35, 0), Vector(-35, -35, 0)),
], False)
sketch5.addConstraint([
    Sketcher.Constraint("Coincident", 0, 2, 1, 1),
    Sketcher.Constraint("Coincident", 1, 2, 2, 1),
    Sketcher.Constraint("Coincident", 2, 2, 3, 1),
    Sketcher.Constraint("Coincident", 3, 2, 4, 1),
    Sketcher.Constraint("Coincident", 4, 2, 5, 1),
    Sketcher.Constraint("Tangent", 5, 2, 6, 2),
    Sketcher.Constraint("Tangent", 6, 1, 7, 1),
    Sketcher.Constraint("Tangent", 7, 2, 8, 1),
    Sketcher.Constraint("Tangent", 8, 2, 9, 1),
    Sketcher.Constraint("Tangent", 9, 2, 10, 2),
    Sketcher.Constraint("Tangent", 10, 1, 11, 1),
    Sketcher.Constraint("Tangent", 11, 2, 12, 2),
    Sketcher.Constraint("Tangent", 12, 1, 13, 1),
    Sketcher.Constraint("Tangent", 13, 2, 14, 1),
    Sketcher.Constraint("Tangent", 14, 2, 15, 1),
    Sketcher.Constraint("Tangent", 15, 2, 16, 2),
    Sketcher.Constraint("Tangent", 16, 1, 17, 1),
    Sketcher.Constraint("Tangent", 17, 2, 18, 2),
    Sketcher.Constraint("Tangent", 18, 1, 19, 1),
    Sketcher.Constraint("Tangent", 19, 2, 20, 1),
    Sketcher.Constraint("Tangent", 20, 2, 21, 1),
    Sketcher.Constraint("Tangent", 21, 2, 22, 2),
    Sketcher.Constraint("Tangent", 22, 1, 23, 1),
    Sketcher.Constraint("Tangent", 23, 2, 24, 2),
    Sketcher.Constraint("Tangent", 24, 1, 25, 1),
    Sketcher.Constraint("Tangent", 25, 2, 26, 1),
    Sketcher.Constraint("Tangent", 26, 2, 27, 1),
    Sketcher.Constraint("Tangent", 27, 2, 28, 2),
    Sketcher.Constraint("Tangent", 28, 1, 29, 1),
    Sketcher.Constraint("Coincident", 29, 2, 30, 1),
    Sketcher.Constraint("Coincident", 30, 2, 31, 1),
    Sketcher.Constraint("Tangent", 31, 2, 32, 2),
    Sketcher.Constraint("Tangent", 32, 1, 33, 1),
    Sketcher.Constraint("Tangent", 33, 2, 34, 1),
    Sketcher.Constraint("Tangent", 34, 2, 35, 1),
    Sketcher.Constraint("Tangent", 35, 2, 36, 2),
    Sketcher.Constraint("Tangent", 36, 1, 37, 1),
    Sketcher.Constraint("Tangent", 37, 2, 38, 2),
    Sketcher.Constraint("Tangent", 38, 1, 39, 1),
    Sketcher.Constraint("Tangent", 39, 2, 40, 1),
    Sketcher.Constraint("Tangent", 40, 2, 41, 1),
    Sketcher.Constraint("Tangent", 41, 2, 42, 2),
    Sketcher.Constraint("Tangent", 42, 1, 43, 1),
    Sketcher.Constraint("Tangent", 43, 2, 44, 2),
    Sketcher.Constraint("Tangent", 44, 1, 45, 1),
    Sketcher.Constraint("Tangent", 45, 2, 46, 1),
    Sketcher.Constraint("Tangent", 46, 2, 47, 1),
    Sketcher.Constraint("Tangent", 47, 2, 48, 2),
    Sketcher.Constraint("Tangent", 48, 1, 49, 1),
    Sketcher.Constraint("Tangent", 49, 2, 50, 2),
    Sketcher.Constraint("Tangent", 50, 1, 51, 1),
    Sketcher.Constraint("Tangent", 51, 2, 52, 1),
    Sketcher.Constraint("Tangent", 52, 2, 53, 1),
    Sketcher.Constraint("Tangent", 53, 2, 54, 2),
    Sketcher.Constraint("Tangent", 54, 1, 55, 1),
    Sketcher.Constraint("Coincident", 55, 2, 0, 1),
    Sketcher.Constraint("Vertical", 0),
    Sketcher.Constraint("Horizontal", 1),
    Sketcher.Constraint("Vertical", 2),
    Sketcher.Constraint("Horizontal", 3),
    Sketcher.Constraint("Vertical", 4),
    Sketcher.Constraint("Horizontal", 5),
    Sketcher.Constraint("Vertical", 7),
    Sketcher.Constraint("Vertical", 9),
    Sketcher.Constraint("Horizontal", 11),
    Sketcher.Constraint("Vertical", 13),
    Sketcher.Constraint("Vertical", 15),
    Sketcher.Constraint("Horizontal", 17),
    Sketcher.Constraint("Vertical", 19),
    Sketcher.Constraint("Vertical", 21),
    Sketcher.Constraint("Horizontal", 23),
    Sketcher.Constraint("Vertical", 25),
    Sketcher.Constraint("Vertical", 27),
    Sketcher.Constraint("Horizontal", 29),
    Sketcher.Constraint("Vertical", 30),
    Sketcher.Constraint("Horizontal", 31),
    Sketcher.Constraint("Vertical", 33),
    Sketcher.Constraint("Vertical", 35),
    Sketcher.Constraint("Horizontal", 37),
    Sketcher.Constraint("Vertical", 39),
    Sketcher.Constraint("Vertical", 41),
    Sketcher.Constraint("Horizontal", 43),
    Sketcher.Constraint("Vertical", 45),
    Sketcher.Constraint("Vertical", 47),
    Sketcher.Constraint("Horizontal", 49),
    Sketcher.Constraint("Vertical", 51),
    Sketcher.Constraint("Vertical", 53),
    Sketcher.Constraint("Horizontal", 55),
    Sketcher.Constraint("Equal", 6, 10),
    Sketcher.Constraint("Equal", 10, 12),
    Sketcher.Constraint("Equal", 8, 14),
    Sketcher.Constraint("Equal", 12, 16),
    Sketcher.Constraint("Equal", 16, 18),
    Sketcher.Constraint("Equal", 14, 20),
    Sketcher.Constraint("Equal", 18, 22),
    Sketcher.Constraint("Equal", 22, 24),
    Sketcher.Constraint("Equal", 20, 26),
    Sketcher.Constraint("Equal", 24, 28),
    Sketcher.Constraint("Equal", 28, 32),
    Sketcher.Constraint("Equal", 26, 34),
    Sketcher.Constraint("Equal", 32, 36),
    Sketcher.Constraint("Equal", 36, 38),
    Sketcher.Constraint("Equal", 34, 40),
    Sketcher.Constraint("Equal", 38, 42),
    Sketcher.Constraint("Equal", 42, 44),
    Sketcher.Constraint("Equal", 40, 46),
    Sketcher.Constraint("Equal", 44, 48),
    Sketcher.Constraint("Equal", 48, 50),
    Sketcher.Constraint("Equal", 46, 52),
    Sketcher.Constraint("Equal", 50, 54),
    Sketcher.Constraint("Symmetric", 6, 3, 38, 3, -1, 1),
    Sketcher.Constraint("Symmetric", 12, 3, 44, 3, -1, 1),
    Sketcher.Constraint("Symmetric", 18, 3, 50, 3, -1, 1),
    Sketcher.Constraint("Symmetric", 12, 3, 16, 3, -2),
    Sketcher.Constraint("Symmetric", 8, 3, 20, 3, -2),
    Sketcher.Constraint("Symmetric", 28, 3, 32, 3, -1),
    Sketcher.Constraint("Symmetric", 0, 2, 3, 2, -1),
    Sketcher.Constraint("Horizontal", 6, 3, 10, 3),
    Sketcher.Constraint("Horizontal", 8, 3, 14, 3),
    Sketcher.Constraint("Horizontal", 18, 3, 22, 3),
    Sketcher.Constraint("Horizontal", 20, 3, 26, 3),
    Sketcher.Constraint("Horizontal", 24, 3, 28, 3),
    Sketcher.Constraint("Horizontal", 34, 3, 40, 3),
    Sketcher.Constraint("Horizontal", 40, 3, 46, 3),
    Sketcher.Constraint("Horizontal", 46, 3, 52, 3),
    Sketcher.Constraint("Horizontal", 50, 3, 54, 3),
    Sketcher.Constraint("Equal", 17, 23),
    Sketcher.Constraint("Equal", 27, 33),
    Sketcher.Constraint("Radius", 6, 1.0),
    Sketcher.Constraint("Radius", 8, 1.5),
    Sketcher.Constraint("DistanceX", 1, 1, 1, 2, 100.0),
    Sketcher.Constraint("DistanceX", 11, 1, 11, 2, 15.0),
    Sketcher.Constraint("DistanceY", 0, 2, 0, 1, 5.0),
    Sketcher.Constraint("DistanceY", 2, 1, 2, 2, 80.0),
    Sketcher.Constraint("DistanceX", 5, 1, 5, 2, 12.5),
    Sketcher.Constraint("DistanceX", 29, 1, 29, 2, 17.5),
    Sketcher.Constraint("DistanceY", 7, 2, 7, 1, 2.5),
])
pad5 = body.newObject("PartDesign::Pad", "Pad004")
pad5.Profile = sketch5
pad5.Type = "TwoLengths"
pad5.Length = 6
pad5.Length2 = 4
doc.recompute()

fillet = body.newObject("PartDesign::Fillet", "Fillet")
fillet.Base = (pad5, edges_at(pad5, [
    (-65, -40, 10.5),
    (-65, 40, 10.5),
    (65, -40, 10.5),
    (65, 40, 10.5),
]))
fillet.Radius = 10
doc.recompute()

fillet2 = body.newObject("PartDesign::Fillet", "Fillet001")
fillet2.Base = (fillet, edges_at(fillet, [
    (-60, 35, 12.5),
    (60, 35, 12.5),
    (60, -35, 12.5),
    (-60, -35, 12.5),
]))
fillet2.Radius = 5

doc.recompute()
